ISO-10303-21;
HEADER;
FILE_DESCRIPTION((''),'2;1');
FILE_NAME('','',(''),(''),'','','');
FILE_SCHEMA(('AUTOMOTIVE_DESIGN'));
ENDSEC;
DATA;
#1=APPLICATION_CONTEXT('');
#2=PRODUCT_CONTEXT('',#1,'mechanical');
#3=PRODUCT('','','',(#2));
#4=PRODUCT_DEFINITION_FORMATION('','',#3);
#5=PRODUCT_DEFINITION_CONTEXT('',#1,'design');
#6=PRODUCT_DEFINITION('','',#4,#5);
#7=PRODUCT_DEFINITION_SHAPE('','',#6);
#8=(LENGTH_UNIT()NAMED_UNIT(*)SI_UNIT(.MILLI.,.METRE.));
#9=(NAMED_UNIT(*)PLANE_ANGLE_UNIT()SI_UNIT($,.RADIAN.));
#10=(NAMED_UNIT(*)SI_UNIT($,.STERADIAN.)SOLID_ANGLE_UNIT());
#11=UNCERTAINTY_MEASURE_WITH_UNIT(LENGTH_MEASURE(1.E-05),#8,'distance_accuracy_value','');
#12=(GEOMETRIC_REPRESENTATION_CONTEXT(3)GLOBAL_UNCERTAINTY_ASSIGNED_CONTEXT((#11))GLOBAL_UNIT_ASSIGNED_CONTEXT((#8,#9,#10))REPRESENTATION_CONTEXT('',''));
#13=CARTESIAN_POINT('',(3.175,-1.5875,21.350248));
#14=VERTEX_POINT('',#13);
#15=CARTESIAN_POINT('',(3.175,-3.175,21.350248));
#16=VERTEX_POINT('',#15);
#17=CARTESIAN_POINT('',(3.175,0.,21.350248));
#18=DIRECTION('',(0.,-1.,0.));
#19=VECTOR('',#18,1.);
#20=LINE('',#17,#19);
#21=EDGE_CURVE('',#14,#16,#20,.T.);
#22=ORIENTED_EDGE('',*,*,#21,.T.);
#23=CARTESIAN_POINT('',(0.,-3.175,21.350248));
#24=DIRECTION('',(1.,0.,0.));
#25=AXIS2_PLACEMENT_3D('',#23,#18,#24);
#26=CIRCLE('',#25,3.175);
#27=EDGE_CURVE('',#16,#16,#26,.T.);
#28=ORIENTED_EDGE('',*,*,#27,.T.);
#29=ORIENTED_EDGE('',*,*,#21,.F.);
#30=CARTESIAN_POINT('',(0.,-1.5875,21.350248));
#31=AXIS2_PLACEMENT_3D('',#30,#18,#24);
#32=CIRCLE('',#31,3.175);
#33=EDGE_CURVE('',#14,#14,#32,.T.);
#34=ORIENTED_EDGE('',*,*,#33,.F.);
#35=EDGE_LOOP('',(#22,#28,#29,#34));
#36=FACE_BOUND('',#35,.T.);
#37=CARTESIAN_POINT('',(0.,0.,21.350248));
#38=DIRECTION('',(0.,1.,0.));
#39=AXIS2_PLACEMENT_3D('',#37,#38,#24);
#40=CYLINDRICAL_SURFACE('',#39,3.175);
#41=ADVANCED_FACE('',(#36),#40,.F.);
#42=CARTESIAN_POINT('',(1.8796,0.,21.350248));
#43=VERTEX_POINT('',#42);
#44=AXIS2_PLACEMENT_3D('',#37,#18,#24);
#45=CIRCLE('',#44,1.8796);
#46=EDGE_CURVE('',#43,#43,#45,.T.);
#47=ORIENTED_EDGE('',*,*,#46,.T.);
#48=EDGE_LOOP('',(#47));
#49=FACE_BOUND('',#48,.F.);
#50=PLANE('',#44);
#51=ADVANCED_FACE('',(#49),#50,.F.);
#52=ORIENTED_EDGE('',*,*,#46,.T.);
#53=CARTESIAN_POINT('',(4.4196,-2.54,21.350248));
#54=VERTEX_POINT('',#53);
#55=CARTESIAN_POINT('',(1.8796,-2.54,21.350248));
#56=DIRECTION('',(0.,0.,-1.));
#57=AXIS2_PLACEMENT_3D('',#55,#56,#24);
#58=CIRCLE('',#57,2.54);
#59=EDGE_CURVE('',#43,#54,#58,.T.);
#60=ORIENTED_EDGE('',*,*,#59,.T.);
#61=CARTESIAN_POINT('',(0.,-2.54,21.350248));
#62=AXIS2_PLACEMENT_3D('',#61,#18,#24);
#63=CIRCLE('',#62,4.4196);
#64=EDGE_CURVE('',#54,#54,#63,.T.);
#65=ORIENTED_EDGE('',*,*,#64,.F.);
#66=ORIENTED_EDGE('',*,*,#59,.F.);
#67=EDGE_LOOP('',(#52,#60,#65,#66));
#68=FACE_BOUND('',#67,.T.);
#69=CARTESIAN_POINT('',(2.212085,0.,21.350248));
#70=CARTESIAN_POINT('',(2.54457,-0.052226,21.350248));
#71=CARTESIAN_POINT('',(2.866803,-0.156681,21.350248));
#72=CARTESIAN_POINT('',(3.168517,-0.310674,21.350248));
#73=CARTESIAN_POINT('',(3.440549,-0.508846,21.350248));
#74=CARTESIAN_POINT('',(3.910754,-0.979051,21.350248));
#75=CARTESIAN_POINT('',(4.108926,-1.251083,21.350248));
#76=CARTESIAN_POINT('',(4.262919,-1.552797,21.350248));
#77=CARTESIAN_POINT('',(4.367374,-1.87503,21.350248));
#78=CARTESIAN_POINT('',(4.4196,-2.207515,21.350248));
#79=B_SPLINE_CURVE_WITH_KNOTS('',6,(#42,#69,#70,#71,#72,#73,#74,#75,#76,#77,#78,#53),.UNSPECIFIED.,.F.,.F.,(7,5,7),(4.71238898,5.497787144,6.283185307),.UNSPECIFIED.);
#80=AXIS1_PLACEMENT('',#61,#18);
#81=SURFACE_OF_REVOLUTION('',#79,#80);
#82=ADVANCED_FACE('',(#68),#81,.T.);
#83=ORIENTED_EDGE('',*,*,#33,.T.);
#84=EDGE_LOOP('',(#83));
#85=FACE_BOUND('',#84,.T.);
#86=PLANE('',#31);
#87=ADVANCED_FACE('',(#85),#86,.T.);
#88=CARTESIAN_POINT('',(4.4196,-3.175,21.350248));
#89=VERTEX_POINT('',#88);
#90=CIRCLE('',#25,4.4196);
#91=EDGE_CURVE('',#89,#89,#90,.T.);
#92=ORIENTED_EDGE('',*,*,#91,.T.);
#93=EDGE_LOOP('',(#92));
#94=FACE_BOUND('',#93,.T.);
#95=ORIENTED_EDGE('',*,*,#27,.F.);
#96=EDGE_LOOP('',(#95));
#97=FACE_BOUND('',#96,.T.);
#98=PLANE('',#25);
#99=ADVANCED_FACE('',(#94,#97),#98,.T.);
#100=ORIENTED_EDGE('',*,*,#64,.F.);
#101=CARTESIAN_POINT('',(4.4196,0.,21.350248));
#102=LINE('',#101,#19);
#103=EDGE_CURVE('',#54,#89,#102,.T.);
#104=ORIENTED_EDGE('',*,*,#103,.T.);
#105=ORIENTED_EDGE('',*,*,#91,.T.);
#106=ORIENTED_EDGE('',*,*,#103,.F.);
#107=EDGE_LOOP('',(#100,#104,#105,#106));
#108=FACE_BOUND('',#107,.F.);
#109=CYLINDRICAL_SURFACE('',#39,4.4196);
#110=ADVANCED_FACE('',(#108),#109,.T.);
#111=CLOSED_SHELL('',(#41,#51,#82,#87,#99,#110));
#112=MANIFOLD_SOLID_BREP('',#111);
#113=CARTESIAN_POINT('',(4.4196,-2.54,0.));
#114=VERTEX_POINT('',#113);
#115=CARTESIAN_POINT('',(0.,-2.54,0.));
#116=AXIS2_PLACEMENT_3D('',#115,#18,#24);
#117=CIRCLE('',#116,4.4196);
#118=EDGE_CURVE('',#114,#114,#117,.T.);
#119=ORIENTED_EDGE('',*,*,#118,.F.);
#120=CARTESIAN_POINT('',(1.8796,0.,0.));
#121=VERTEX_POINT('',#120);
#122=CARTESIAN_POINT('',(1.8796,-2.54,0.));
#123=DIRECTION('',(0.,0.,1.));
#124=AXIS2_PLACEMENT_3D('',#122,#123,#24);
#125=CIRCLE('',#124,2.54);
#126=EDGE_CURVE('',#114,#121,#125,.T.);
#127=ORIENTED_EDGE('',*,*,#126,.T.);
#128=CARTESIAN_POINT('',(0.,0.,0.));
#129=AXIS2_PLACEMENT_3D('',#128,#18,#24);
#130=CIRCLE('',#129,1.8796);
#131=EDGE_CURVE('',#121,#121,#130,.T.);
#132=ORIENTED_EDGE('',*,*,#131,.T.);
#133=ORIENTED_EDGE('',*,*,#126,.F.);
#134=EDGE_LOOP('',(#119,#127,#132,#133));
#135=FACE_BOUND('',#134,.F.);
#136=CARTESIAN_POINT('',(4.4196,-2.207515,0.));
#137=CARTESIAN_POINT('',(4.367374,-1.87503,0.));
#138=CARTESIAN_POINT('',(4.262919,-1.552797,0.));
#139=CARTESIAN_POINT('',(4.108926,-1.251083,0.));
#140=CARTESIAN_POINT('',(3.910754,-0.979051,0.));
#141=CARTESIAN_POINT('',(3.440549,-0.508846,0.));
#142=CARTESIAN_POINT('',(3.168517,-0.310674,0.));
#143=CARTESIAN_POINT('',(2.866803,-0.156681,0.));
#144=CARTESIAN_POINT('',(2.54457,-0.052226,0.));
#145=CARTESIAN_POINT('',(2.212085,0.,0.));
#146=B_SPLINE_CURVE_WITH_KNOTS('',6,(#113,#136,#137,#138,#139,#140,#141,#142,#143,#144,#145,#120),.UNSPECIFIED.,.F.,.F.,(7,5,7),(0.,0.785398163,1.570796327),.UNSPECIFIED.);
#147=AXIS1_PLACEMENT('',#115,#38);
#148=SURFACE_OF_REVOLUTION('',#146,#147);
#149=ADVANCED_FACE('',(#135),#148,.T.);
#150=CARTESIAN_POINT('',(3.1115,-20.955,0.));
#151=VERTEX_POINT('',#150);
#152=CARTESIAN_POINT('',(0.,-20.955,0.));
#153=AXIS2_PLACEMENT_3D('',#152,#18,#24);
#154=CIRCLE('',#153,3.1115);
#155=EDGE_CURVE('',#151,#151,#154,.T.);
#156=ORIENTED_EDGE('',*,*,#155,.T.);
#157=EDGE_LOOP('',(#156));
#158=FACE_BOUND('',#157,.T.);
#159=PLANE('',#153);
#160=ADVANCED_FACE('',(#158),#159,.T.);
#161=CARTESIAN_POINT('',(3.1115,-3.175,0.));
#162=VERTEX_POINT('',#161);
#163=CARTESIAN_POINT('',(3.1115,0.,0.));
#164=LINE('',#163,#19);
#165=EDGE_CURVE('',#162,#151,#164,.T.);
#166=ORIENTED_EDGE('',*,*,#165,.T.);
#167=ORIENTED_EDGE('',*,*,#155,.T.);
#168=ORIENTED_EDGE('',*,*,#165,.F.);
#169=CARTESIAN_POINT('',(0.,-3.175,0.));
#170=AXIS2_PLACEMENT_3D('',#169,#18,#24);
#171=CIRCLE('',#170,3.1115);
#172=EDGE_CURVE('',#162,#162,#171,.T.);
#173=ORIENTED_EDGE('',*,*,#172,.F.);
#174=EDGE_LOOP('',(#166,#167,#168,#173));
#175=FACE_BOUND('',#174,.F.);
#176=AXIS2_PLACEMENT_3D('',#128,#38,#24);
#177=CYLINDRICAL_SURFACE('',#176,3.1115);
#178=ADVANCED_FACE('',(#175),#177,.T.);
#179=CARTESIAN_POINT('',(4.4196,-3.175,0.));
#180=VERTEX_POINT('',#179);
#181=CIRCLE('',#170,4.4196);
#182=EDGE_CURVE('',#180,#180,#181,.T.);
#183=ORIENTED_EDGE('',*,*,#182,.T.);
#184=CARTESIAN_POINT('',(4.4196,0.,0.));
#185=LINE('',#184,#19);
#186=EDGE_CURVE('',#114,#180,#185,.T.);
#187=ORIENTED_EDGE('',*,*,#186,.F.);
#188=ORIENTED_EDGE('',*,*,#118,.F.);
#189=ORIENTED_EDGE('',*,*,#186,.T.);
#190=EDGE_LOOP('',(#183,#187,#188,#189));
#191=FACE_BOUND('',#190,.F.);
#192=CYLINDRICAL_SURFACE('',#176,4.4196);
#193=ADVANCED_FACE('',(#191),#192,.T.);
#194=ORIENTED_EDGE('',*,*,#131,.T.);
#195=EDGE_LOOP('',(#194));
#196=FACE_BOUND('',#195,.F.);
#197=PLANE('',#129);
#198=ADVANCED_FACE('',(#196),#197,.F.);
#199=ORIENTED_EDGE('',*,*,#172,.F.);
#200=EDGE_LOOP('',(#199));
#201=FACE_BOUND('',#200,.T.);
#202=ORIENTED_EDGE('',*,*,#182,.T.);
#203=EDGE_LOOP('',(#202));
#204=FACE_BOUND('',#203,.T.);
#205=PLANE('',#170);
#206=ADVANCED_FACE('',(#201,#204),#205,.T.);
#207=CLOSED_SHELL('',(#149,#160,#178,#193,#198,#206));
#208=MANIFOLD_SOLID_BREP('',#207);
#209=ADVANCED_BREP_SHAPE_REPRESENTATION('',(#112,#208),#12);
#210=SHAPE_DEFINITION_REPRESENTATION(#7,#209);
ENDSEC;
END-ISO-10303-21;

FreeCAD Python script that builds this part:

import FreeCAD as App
import Part
import Sketcher

V = App.Vector
Q = App.Units.Quantity


def edges_at(feature, points):
    """Names of the edges that pass closest to the given points."""
    edges = feature.Shape.Edges
    near = lambda p: min(range(len(edges)), key=lambda i: edges[i].distToShape(Part.Vertex(*p))[0])
    return sorted({f"Edge{near(p) + 1}" for p in points})

doc = App.newDocument("Part")
params = doc.addObject("Spreadsheet::Sheet", "Params")
for row, (alias, value) in enumerate([
    ("sketch1_diameter", "0.245 in"),
    ("pad1_length", "0.825 in"),
    ("sketch2_diameter", "0.348 in"),
    ("sketch2_diameter2", "0.245 in"),
    ("pad2_length", "0.125 in"),
    ("fillet_radius", "0.1 in"),
    ("sketch3_diameter", "0.25 in"),
    ("sketch3_diameter2", "0.348 in"),
    ("pad3_length", "0.125 in"),
    ("sketch4_diameter", "0.25 in"),
    ("pad4_length", "0.0625 in"),
    ("fillet2_radius", "0.1 in"),
], start=1):
    params.set(f"A{row}", alias)
    params.set(f"B{row}", "=" + value)
    params.setAlias(f"B{row}", alias)

body = doc.addObject("PartDesign::Body", "Body")

# Sketch on XZ plane
sketch1 = body.newObject("Sketcher::SketchObject", "Sketch")
sketch1.AttachmentSupport = (doc.getObject("XZ_Plane"), [""])
sketch1.MapMode = "FlatFace"
sketch1.addGeometry(Part.Circle(V(0, 0, 0), V(0, 0, 1), 3.1), False)
sketch1.addConstraint([
    Sketcher.Constraint("Coincident", 0, 3, -1, 1),
    Sketcher.Constraint("Diameter", 0, Q("0.245 in")),
])
sketch1.setExpression("Constraints[1]", "Params.sketch1_diameter")
pad1 = body.newObject("PartDesign::Pad", "Pad")
pad1.Profile = sketch1
pad1.setExpression("Length", "Params.pad1_length")

# Sketch on XZ plane
sketch2 = body.newObject("Sketcher::SketchObject", "Sketch001")
sketch2.AttachmentSupport = (doc.getObject("XZ_Plane"), [""])
sketch2.MapMode = "FlatFace"
sketch2.addGeometry([
    Part.Circle(V(0, 0, 0), V(0, 0, 1), 4.4),
    Part.Circle(V(0, 0, 0), V(0, 0, 1), 3.1),
], False)
sketch2.addConstraint([
    Sketcher.Constraint("Coincident", 0, 3, -1, 1),
    Sketcher.Constraint("Coincident", 1, 3, -1, 1),
    Sketcher.Constraint("Diameter", 0, Q("0.348 in")),
    Sketcher.Constraint("Diameter", 1, Q("0.245 in")),
])
sketch2.setExpression("Constraints[2]", "Params.sketch2_diameter")
sketch2.setExpression("Constraints[3]", "Params.sketch2_diameter2")
pad2 = body.newObject("PartDesign::Pad", "Pad001")
pad2.Profile = sketch2
pad2.setExpression("Length", "Params.pad2_length")
doc.recompute()

fillet = body.newObject("PartDesign::Fillet", "Fillet")
fillet.Base = (pad2, edges_at(pad2, [(-4.42, 0, 0)]))
fillet.setExpression("Radius", "Params.fillet_radius")
body2 = doc.addObject("PartDesign::Body", "Body001")

# Sketch on XZ plane
sketch3 = body2.newObject("Sketcher::SketchObject", "Sketch002")
sketch3.AttachmentSupport = (doc.getObject("XZ_Plane001"), [""])
sketch3.MapMode = "FlatFace"
sketch3.addGeometry([
    Part.Circle(V(0, 21.4, 0), V(0, 0, 1), 4.4),
    Part.Circle(V(0, 21.4, 0), V(0, 0, 1), 3.2),
], False)
sketch3.addConstraint([
    Sketcher.Constraint("Coincident", 1, 3, 0, 3),
    Sketcher.Constraint("PointOnObject", 0, 3, -2),
    Sketcher.Constraint("Diameter", 1, Q("0.25 in")),
    Sketcher.Constraint("Diameter", 0, Q("0.348 in")),
    Sketcher.Constraint("DistanceY", -1, 1, 0, 3, 21.350248),
])
sketch3.setExpression("Constraints[2]", "Params.sketch3_diameter")
sketch3.setExpression("Constraints[3]", "Params.sketch3_diameter2")
pad3 = body2.newObject("PartDesign::Pad", "Pad002")
pad3.Profile = sketch3
pad3.setExpression("Length", "Params.pad3_length")

# Sketch on XZ plane
sketch4 = body2.newObject("Sketcher::SketchObject", "Sketch003")
sketch4.AttachmentSupport = (doc.getObject("XZ_Plane001"), [""])
sketch4.MapMode = "FlatFace"
sketch4.addGeometry(Part.Circle(V(0, 21.4, 0), V(0, 0, 1), 3.2), False)
sketch4.addConstraint([
    Sketcher.Constraint("PointOnObject", 0, 3, -2),
    Sketcher.Constraint("Diameter", 0, Q("0.25 in")),
    Sketcher.Constraint("DistanceY", -1, 1, 0, 3, 21.350248),
])
sketch4.setExpression("Constraints[1]", "Params.sketch4_diameter")
pad4 = body2.newObject("PartDesign::Pad", "Pad003")
pad4.Profile = sketch4
pad4.setExpression("Length", "Params.pad4_length")
doc.recompute()

fillet2 = body2.newObject("PartDesign::Fillet", "Fillet001")
fillet2.Base = (pad4, edges_at(pad4, [(-4.42, 0, 21.35)]))
fillet2.setExpression("Radius", "Params.fillet2_radius")

doc.recompute()
